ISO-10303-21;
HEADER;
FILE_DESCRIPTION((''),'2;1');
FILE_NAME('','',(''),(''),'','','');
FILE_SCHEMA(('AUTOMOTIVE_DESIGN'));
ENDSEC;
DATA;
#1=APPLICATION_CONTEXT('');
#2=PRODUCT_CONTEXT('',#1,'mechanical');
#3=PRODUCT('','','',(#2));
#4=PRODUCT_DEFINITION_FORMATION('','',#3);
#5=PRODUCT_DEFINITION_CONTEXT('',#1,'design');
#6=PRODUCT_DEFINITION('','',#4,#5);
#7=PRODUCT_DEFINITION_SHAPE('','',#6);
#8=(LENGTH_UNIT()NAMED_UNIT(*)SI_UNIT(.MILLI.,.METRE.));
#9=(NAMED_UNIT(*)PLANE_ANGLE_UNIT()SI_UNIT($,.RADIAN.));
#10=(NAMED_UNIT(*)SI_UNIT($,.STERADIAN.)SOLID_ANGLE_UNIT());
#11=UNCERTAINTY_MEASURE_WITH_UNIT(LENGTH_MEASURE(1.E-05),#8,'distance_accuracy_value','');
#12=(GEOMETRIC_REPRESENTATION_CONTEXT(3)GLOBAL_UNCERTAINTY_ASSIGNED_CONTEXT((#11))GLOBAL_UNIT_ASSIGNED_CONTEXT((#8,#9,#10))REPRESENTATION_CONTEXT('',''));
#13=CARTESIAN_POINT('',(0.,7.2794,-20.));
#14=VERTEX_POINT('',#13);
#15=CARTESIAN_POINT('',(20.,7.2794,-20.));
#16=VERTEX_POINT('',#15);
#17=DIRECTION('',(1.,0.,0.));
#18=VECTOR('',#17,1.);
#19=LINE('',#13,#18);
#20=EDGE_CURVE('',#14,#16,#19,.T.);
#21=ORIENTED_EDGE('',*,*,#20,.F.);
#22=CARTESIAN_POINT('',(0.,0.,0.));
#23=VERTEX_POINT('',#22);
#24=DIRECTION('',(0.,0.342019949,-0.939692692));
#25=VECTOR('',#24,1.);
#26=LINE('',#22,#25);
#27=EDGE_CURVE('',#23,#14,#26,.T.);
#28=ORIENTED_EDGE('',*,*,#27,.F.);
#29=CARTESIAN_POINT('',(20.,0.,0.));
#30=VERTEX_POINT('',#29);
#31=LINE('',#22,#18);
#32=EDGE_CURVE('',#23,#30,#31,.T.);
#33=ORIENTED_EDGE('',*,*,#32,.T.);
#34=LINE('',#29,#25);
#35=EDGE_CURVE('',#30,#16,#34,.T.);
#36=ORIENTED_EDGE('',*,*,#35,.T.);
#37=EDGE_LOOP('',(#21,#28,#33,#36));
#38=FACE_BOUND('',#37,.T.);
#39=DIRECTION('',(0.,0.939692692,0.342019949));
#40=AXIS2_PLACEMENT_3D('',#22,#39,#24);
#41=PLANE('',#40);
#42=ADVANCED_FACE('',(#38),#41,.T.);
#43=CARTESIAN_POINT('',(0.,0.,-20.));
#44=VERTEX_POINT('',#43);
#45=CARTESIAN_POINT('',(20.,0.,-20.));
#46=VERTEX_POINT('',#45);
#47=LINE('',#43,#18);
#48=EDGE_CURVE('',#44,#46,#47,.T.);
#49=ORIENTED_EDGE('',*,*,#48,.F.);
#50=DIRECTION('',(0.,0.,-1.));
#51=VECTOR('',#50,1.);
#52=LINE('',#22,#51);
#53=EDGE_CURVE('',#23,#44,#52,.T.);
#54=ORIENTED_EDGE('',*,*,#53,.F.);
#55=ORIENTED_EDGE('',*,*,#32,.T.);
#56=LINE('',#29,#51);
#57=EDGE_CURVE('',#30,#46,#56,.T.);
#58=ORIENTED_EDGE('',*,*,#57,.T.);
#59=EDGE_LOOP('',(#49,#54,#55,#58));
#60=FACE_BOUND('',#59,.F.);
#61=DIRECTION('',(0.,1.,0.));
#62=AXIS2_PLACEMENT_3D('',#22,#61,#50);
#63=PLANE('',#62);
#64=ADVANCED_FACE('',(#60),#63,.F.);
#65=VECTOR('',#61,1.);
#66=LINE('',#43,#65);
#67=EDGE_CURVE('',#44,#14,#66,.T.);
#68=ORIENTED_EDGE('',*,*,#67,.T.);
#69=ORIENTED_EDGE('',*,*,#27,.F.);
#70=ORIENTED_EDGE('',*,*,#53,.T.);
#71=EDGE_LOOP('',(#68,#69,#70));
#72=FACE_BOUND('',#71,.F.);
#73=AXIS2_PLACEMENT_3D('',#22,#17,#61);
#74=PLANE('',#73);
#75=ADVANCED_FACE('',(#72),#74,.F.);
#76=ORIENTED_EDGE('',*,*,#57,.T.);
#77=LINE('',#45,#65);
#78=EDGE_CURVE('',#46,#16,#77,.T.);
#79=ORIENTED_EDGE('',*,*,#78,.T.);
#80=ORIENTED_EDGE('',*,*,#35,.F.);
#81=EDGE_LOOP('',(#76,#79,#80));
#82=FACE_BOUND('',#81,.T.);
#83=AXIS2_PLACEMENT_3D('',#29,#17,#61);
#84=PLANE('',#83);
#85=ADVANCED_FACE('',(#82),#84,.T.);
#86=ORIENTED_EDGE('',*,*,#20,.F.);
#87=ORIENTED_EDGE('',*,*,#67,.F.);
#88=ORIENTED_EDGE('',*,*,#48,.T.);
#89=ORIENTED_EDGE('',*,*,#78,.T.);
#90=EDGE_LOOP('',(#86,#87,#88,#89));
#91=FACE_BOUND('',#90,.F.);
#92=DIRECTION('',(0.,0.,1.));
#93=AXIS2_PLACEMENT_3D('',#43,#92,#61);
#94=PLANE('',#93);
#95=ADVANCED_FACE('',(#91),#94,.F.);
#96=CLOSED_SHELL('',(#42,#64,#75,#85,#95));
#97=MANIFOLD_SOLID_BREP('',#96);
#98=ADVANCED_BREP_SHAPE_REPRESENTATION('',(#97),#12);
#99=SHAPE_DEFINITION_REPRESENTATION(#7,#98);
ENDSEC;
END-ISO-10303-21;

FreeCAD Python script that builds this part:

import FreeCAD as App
import Part
import Sketcher
from FreeCAD import Vector
Q = App.Units.Quantity

doc = App.newDocument("Part")
body = doc.addObject("PartDesign::Body", "Body")

# Sketch on YZ plane
sketch1 = body.newObject("Sketcher::SketchObject", "Sketch")
sketch1.AttachmentSupport = (doc.getObject("YZ_Plane"), [""])
sketch1.MapMode = "FlatFace"
sketch1.addGeometry([
    Part.LineSegment(Vector(7, -20, 0), Vector(0, 0, 0)),
    Part.LineSegment(Vector(0, 0, 0), Vector(0, -20, 0)),
    Part.LineSegment(Vector(0, -20, 0), Vector(7, -20, 0)),
], False)
sketch1.addConstraint([
    Sketcher.Constraint("Coincident", 0, 2, 1, 1),
    Sketcher.Constraint("Coincident", 1, 2, 2, 1),
    Sketcher.Constraint("Coincident", 2, 2, 0, 1),
    Sketcher.Constraint("Vertical", 1),
    Sketcher.Constraint("Horizontal", 2),
    Sketcher.Constraint("Coincident", 0, 2, -1, 1),
    Sketcher.Constraint("DistanceY", 1, 2, 1, 1, 20.0),
    Sketcher.Constraint("Angle", 0, Q("110 deg")),
])
pad1 = body.newObject("PartDesign::Pad", "Pad")
pad1.Profile = sketch1
pad1.Length = 20

doc.recompute()
